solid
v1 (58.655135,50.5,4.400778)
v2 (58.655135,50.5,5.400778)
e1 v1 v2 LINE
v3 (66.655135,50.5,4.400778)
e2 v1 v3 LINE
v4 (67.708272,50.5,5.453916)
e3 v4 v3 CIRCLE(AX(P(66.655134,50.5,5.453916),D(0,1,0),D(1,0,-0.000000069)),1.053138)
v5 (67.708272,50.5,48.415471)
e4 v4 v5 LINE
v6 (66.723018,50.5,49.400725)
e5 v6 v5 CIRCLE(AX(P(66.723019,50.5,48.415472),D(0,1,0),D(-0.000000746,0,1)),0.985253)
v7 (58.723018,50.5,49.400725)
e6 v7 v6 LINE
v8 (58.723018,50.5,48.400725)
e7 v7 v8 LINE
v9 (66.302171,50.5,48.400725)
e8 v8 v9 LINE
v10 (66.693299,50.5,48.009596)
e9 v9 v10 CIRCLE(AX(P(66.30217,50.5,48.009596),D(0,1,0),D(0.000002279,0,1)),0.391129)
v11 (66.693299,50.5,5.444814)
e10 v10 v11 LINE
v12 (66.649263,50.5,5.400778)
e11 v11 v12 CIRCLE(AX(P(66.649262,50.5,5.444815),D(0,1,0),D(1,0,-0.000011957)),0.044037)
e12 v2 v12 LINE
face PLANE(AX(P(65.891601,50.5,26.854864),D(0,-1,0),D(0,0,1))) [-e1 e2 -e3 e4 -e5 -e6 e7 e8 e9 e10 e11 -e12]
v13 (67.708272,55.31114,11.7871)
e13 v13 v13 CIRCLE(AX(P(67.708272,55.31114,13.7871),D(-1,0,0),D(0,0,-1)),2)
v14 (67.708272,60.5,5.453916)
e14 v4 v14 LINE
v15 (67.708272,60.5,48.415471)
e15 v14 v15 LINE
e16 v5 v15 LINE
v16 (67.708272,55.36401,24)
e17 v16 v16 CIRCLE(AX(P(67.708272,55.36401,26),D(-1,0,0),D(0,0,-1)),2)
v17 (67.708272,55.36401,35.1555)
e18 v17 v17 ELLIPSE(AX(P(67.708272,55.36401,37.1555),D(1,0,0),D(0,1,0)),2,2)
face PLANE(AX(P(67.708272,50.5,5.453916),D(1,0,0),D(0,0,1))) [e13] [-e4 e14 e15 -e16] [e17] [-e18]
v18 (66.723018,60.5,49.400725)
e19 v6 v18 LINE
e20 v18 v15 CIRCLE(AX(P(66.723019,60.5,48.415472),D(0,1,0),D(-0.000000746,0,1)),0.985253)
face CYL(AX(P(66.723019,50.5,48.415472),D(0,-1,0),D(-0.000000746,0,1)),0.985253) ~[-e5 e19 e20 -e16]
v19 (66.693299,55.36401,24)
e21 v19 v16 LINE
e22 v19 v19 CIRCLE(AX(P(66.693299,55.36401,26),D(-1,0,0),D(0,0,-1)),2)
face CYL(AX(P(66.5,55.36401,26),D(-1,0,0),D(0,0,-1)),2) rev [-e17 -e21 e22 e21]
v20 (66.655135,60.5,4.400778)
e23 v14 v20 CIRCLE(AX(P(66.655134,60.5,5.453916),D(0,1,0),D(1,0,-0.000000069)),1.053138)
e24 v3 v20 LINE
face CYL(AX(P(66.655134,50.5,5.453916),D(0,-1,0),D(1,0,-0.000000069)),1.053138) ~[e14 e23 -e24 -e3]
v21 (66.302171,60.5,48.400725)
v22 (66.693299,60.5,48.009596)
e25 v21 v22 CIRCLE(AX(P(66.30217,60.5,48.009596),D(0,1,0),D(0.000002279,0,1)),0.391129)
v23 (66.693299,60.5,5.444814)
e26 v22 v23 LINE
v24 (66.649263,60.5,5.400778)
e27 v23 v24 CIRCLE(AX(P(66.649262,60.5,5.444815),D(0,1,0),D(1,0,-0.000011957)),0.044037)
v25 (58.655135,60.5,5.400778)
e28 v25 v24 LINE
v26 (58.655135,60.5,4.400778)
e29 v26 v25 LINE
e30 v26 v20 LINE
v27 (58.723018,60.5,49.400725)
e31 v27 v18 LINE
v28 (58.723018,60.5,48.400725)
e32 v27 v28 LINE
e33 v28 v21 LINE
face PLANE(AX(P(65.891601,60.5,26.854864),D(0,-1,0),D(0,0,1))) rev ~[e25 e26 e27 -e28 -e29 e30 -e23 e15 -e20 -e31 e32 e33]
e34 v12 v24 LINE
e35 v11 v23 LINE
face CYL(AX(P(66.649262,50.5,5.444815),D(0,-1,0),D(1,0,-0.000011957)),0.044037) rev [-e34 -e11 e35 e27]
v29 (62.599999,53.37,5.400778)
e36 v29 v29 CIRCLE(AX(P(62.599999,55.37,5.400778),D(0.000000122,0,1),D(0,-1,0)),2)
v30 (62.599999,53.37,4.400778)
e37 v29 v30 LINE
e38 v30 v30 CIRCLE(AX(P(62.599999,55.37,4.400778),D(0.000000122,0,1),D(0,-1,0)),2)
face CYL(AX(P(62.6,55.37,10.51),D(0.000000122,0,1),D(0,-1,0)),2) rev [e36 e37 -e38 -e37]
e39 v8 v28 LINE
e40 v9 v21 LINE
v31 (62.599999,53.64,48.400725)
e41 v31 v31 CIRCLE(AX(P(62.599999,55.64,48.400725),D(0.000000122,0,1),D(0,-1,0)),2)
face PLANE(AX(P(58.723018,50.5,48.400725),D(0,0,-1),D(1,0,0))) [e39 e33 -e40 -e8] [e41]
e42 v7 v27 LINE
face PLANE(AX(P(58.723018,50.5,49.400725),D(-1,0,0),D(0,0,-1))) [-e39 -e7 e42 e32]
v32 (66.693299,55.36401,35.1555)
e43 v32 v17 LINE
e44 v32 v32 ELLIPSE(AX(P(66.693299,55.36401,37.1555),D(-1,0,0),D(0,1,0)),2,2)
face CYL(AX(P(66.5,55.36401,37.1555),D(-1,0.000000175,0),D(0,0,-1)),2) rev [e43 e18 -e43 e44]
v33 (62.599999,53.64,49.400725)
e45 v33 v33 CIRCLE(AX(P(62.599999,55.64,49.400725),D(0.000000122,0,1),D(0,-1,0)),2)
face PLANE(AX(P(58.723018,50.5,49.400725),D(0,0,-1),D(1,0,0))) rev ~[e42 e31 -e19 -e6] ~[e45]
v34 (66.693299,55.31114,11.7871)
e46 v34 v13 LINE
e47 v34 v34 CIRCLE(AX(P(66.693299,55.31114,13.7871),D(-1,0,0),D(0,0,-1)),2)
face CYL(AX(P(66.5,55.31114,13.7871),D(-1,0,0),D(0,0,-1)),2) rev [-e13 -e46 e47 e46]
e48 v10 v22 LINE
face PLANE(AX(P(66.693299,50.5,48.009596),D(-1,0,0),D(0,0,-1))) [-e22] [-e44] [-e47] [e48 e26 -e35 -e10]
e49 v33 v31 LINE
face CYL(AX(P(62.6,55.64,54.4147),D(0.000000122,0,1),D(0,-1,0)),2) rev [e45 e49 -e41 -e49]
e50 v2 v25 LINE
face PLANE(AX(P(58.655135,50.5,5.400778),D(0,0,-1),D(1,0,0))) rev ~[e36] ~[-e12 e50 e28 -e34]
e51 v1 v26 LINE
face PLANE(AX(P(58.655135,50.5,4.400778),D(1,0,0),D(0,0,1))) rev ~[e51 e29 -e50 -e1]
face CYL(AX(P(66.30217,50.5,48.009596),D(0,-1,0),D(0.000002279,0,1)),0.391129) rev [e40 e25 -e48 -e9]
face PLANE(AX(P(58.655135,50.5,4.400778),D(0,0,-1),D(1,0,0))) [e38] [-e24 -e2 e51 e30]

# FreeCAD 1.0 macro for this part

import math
import FreeCAD as App
import Part
import Sketcher
from FreeCAD import Vector

doc = App.newDocument("Part")
body = doc.addObject("PartDesign::Body", "Body")

# Sketch on XY plane
sketch1 = body.newObject("Sketcher::SketchObject", "Sketch")
sketch1.AttachmentSupport = (doc.getObject("XY_Plane"), [""])
sketch1.MapMode = "FlatFace"
sketch1.addGeometry(Part.Circle(Vector(0, 0, 0), Vector(0, 0, 1), 2), False)
sketch1.addConstraint([
    Sketcher.Constraint("Coincident", 0, 3, -1, 1),
    Sketcher.Constraint("Diameter", 0, 4.0),
])
pad1 = body.newObject("PartDesign::Pad", "Pad")
pad1.Profile = sketch1
pad1.Length = 10
body2 = doc.addObject("PartDesign::Body", "Body001")
doc.recompute()

body.Placement = App.Placement(Vector(0, 0, 0), App.Rotation(Vector(0, 1, 0), 90))
boolean = body2.newObject("PartDesign::Boolean", "Boolean")
boolean.Type = "Fuse"
boolean.addObjects([body])
body3 = doc.addObject("PartDesign::Body", "Body002")
doc.recompute()

body2.Placement = App.Placement(Vector(15.49, 3.9, 4.87), App.Rotation(Vector(0, 0, 1), 0.000007))
boolean2 = body3.newObject("PartDesign::Boolean", "Boolean001")
boolean2.Type = "Fuse"
boolean2.addObjects([body2])
body4 = doc.addObject("PartDesign::Body", "Body003")

# Sketch on XY plane
sketch2 = body4.newObject("Sketcher::SketchObject", "Sketch001")
sketch2.AttachmentSupport = (doc.getObject("XY_Plane003"), [""])
sketch2.MapMode = "FlatFace"
sketch2.addGeometry(Part.Circle(Vector(0, 0, 0), Vector(0, 0, 1), 2), False)
sketch2.addConstraint([
    Sketcher.Constraint("Coincident", 0, 3, -1, 1),
    Sketcher.Constraint("Diameter", 0, 4.0),
])
pad2 = body4.newObject("PartDesign::Pad", "Pad001")
pad2.Profile = sketch2
pad2.Length = 10
body5 = doc.addObject("PartDesign::Body", "Body004")
doc.recompute()

body4.Placement = App.Placement(Vector(0, 0, 0), App.Rotation(Vector(0, 1, 0), 90))
boolean3 = body5.newObject("PartDesign::Boolean", "Boolean002")
boolean3.Type = "Fuse"
boolean3.addObjects([body4])
body6 = doc.addObject("PartDesign::Body", "Body005")
doc.recompute()

body5.Placement = App.Placement(Vector(-28.4147, 3.9, 5.14), App.Rotation(Vector(0, 0, 1), 0.000007))
boolean4 = body6.newObject("PartDesign::Boolean", "Boolean003")
boolean4.Type = "Fuse"
boolean4.addObjects([body5])
body7 = doc.addObject("PartDesign::Body", "Body006")

# Sketch on XY plane
sketch3 = body7.newObject("Sketcher::SketchObject", "Sketch002")
sketch3.AttachmentSupport = (doc.getObject("XY_Plane006"), [""])
sketch3.MapMode = "FlatFace"
sketch3.addGeometry(Part.Circle(Vector(0, 0, 0), Vector(0, 0, 1), 2), False)
sketch3.addConstraint([
    Sketcher.Constraint("Coincident", 0, 3, -1, 1),
    Sketcher.Constraint("Diameter", 0, 4.0),
])
pad3 = body7.newObject("PartDesign::Pad", "Pad002")
pad3.Profile = sketch3
pad3.Length = 2
body8 = doc.addObject("PartDesign::Body", "Body007")
doc.recompute()

body7.Placement = App.Placement(Vector(0, 0, 0), App.Rotation(Vector(1, 0, 0), 271.492946))
boolean5 = body8.newObject("PartDesign::Boolean", "Boolean004")
boolean5.Type = "Fuse"
boolean5.addObjects([body7])
body9 = doc.addObject("PartDesign::Body", "Body008")
doc.recompute()

body8.Placement = App.Placement(Vector(0, 0, 0), App.Rotation(Vector(0, 1, 0), 272.98249))
boolean6 = body9.newObject("PartDesign::Boolean", "Boolean005")
boolean6.Type = "Fuse"
boolean6.addObjects([body8])
body10 = doc.addObject("PartDesign::Body", "Body009")
doc.recompute()

body9.Placement = App.Placement(Vector(-26, 5.29, 4.9), App.Rotation(Vector(0, 0, 1), 267.755985))
boolean7 = body10.newObject("PartDesign::Boolean", "Boolean006")
boolean7.Type = "Fuse"
boolean7.addObjects([body9])
body11 = doc.addObject("PartDesign::Body", "Body010")

# Sketch on XY plane
sketch4 = body11.newObject("Sketcher::SketchObject", "Sketch003")
sketch4.AttachmentSupport = (doc.getObject("XY_Plane010"), [""])
sketch4.MapMode = "FlatFace"
sketch4.addGeometry(Part.Circle(Vector(0, 0, 0), Vector(0, 0, 1), 2), False)
sketch4.addConstraint([
    Sketcher.Constraint("Coincident", 0, 3, -1, 1),
    Sketcher.Constraint("Diameter", 0, 4.0),
])
pad4 = body11.newObject("PartDesign::Pad", "Pad003")
pad4.Profile = sketch4
pad4.Length = 2
body12 = doc.addObject("PartDesign::Body", "Body011")
doc.recompute()

body11.Placement = App.Placement(Vector(-11.1555, 0, 4.86401), App.Rotation(Vector(1, 0, 0), 90.00001))
boolean8 = body12.newObject("PartDesign::Boolean", "Boolean007")
boolean8.Type = "Fuse"
boolean8.addObjects([body11])
body13 = doc.addObject("PartDesign::Body", "Body012")

# Sketch on XY plane
sketch5 = body13.newObject("Sketcher::SketchObject", "Sketch004")
sketch5.AttachmentSupport = (doc.getObject("XY_Plane012"), [""])
sketch5.MapMode = "FlatFace"
sketch5.addGeometry(Part.Circle(Vector(0, 0, 0), Vector(0, 0, 1), 2), False)
sketch5.addConstraint([
    Sketcher.Constraint("Coincident", 0, 3, -1, 1),
    Sketcher.Constraint("Diameter", 0, 4.0),
])
pad5 = body13.newObject("PartDesign::Pad", "Pad004")
pad5.Profile = sketch5
pad5.Length = 2
body14 = doc.addObject("PartDesign::Body", "Body013")
doc.recompute()

body13.Placement = App.Placement(Vector(0, 0, 0), App.Rotation(Vector(1, 0, 0), 90))
boolean9 = body14.newObject("PartDesign::Boolean", "Boolean008")
boolean9.Type = "Fuse"
boolean9.addObjects([body13])
body15 = doc.addObject("PartDesign::Body", "Body014")
doc.recompute()

body14.Placement = App.Placement(Vector(0, 0, 4.86401), App.Rotation(Vector(0, 0, 1), 0))
boolean10 = body15.newObject("PartDesign::Boolean", "Boolean009")
boolean10.Type = "Fuse"
boolean10.addObjects([body14])
body16 = doc.addObject("PartDesign::Body", "Body015")

# Sketch on XY plane
sketch6 = body16.newObject("Sketcher::SketchObject", "Sketch005")
sketch6.AttachmentSupport = (doc.getObject("XY_Plane015"), [""])
sketch6.MapMode = "FlatFace"
sketch6.addGeometry(Part.Circle(Vector(0, 0, 0), Vector(0, 0, 1), 2), False)
sketch6.addConstraint([
    Sketcher.Constraint("Coincident", 0, 3, -1, 1),
    Sketcher.Constraint("Diameter", 0, 4.0),
])
pad6 = body16.newObject("PartDesign::Pad", "Pad005")
pad6.Profile = sketch6
pad6.Length = 2
body17 = doc.addObject("PartDesign::Body", "Body016")
doc.recompute()

body16.Placement = App.Placement(Vector(0, 0, 0), App.Rotation(Vector(1, 0, 0), 90))
boolean11 = body17.newObject("PartDesign::Boolean", "Boolean010")
boolean11.Type = "Fuse"
boolean11.addObjects([body16])
body18 = doc.addObject("PartDesign::Body", "Body017")
doc.recompute()

body17.Placement = App.Placement(Vector(12.2129, 0, 4.81114), App.Rotation(Vector(0, 0, 1), 0))
boolean12 = body18.newObject("PartDesign::Boolean", "Boolean011")
boolean12.Type = "Fuse"
boolean12.addObjects([body17])
body19 = doc.addObject("PartDesign::Body", "Body018")

# Sketch on XY plane
sketch7 = body19.newObject("Sketcher::SketchObject", "Sketch006")
sketch7.AttachmentSupport = (doc.getObject("XY_Plane018"), [""])
sketch7.MapMode = "FlatFace"
sketch7.addGeometry(Part.Circle(Vector(0, 0, 0), Vector(0, 0, 1), 2), False)
sketch7.addConstraint([
    Sketcher.Constraint("Coincident", 0, 3, -1, 1),
    Sketcher.Constraint("Diameter", 0, 4.0),
])
pad7 = body19.newObject("PartDesign::Pad", "Pad006")
pad7.Profile = sketch7
pad7.Length = 2
body20 = doc.addObject("PartDesign::Body", "Body019")
doc.recompute()

body19.Placement = App.Placement(Vector(0, 0, 0), App.Rotation(Vector(1, 0, 0), 271.492946))
boolean13 = body20.newObject("PartDesign::Boolean", "Boolean012")
boolean13.Type = "Fuse"
boolean13.addObjects([body19])
body21 = doc.addObject("PartDesign::Body", "Body020")
doc.recompute()

body20.Placement = App.Placement(Vector(0, 0, 0), App.Rotation(Vector(0, 1, 0), 272.98249))
boolean14 = body21.newObject("PartDesign::Boolean", "Boolean013")
boolean14.Type = "Fuse"
boolean14.addObjects([body20])
body22 = doc.addObject("PartDesign::Body", "Body021")
doc.recompute()

body21.Placement = App.Placement(Vector(25, 5.38, 4.9), App.Rotation(Vector(0, 0, 1), 267.755985))
boolean15 = body22.newObject("PartDesign::Boolean", "Boolean014")
boolean15.Type = "Fuse"
boolean15.addObjects([body21])
body23 = doc.addObject("PartDesign::Body", "Body022")

# Sketch on XY plane
sketch8 = body23.newObject("Sketcher::SketchObject", "Sketch007")
sketch8.AttachmentSupport = (doc.getObject("XY_Plane022"), [""])
sketch8.MapMode = "FlatFace"
sketch8.addGeometry([
    Part.LineSegment(Vector(-22.415, -1.208, 0), Vector(20.546, -1.208, 0)),  # 0
    Part.ArcOfCircle(Part.Circle(Vector(20.546, -0.155, 0), Vector(0, 0, 1), 1.053), math.radians(-90), math.radians(0)),  # 1
    Part.LineSegment(Vector(21.599, -0.155, 0), Vector(21.599, 7.845, 0)),  # 2
    Part.LineSegment(Vector(21.599, 7.845, 0), Vector(20.599, 7.845, 0)),  # 3
    Part.LineSegment(Vector(20.599, 7.845, 0), Vector(20.599, -0.149, 0)),  # 4
    Part.ArcOfCircle(Part.Circle(Vector(20.555, -0.149, 0), Vector(0, 0, 1), 0.044), math.radians(-90), math.radians(0)),  # 5
    Part.LineSegment(Vector(20.555, -0.193, 0), Vector(-22.01, -0.193, 0)),  # 6
    Part.ArcOfCircle(Part.Circle(Vector(-22.01, 0.198, 0), Vector(0, 0, 1), 0.391), math.radians(-180), math.radians(-90)),  # 7
    Part.LineSegment(Vector(-22.401, 0.198, 0), Vector(-22.401, 7.777, 0)),  # 8
    Part.LineSegment(Vector(-22.401, 7.777, 0), Vector(-23.401, 7.777, 0)),  # 9
    Part.LineSegment(Vector(-23.401, 7.777, 0), Vector(-23.401, -0.223, 0)),  # 10
    Part.ArcOfCircle(Part.Circle(Vector(-22.415, -0.223, 0), Vector(0, 0, 1), 0.985), math.radians(180), math.radians(270)),  # 11
], False)
sketch8.addConstraint([
    Sketcher.Constraint("Tangent", 0, 2, 1, 1),
    Sketcher.Constraint("Tangent", 1, 2, 2, 1),
    Sketcher.Constraint("Coincident", 2, 2, 3, 1),
    Sketcher.Constraint("Coincident", 3, 2, 4, 1),
    Sketcher.Constraint("Coincident", 4, 2, 5, 2),
    Sketcher.Constraint("Coincident", 5, 1, 6, 1),
    Sketcher.Constraint("Tangent", 6, 2, 7, 2),
    Sketcher.Constraint("Coincident", 7, 1, 8, 1),
    Sketcher.Constraint("Coincident", 8, 2, 9, 1),
    Sketcher.Constraint("Coincident", 9, 2, 10, 1),
    Sketcher.Constraint("Tangent", 10, 2, 11, 1),
    Sketcher.Constraint("Tangent", 11, 2, 0, 1),
    Sketcher.Constraint("Horizontal", 0),
    Sketcher.Constraint("Vertical", 2),
    Sketcher.Constraint("Horizontal", 3),
    Sketcher.Constraint("Vertical", 4),
    Sketcher.Constraint("Horizontal", 6),
    Sketcher.Constraint("Vertical", 8),
    Sketcher.Constraint("Horizontal", 9),
    Sketcher.Constraint("Vertical", 10),
    Sketcher.Constraint("Horizontal", 5, 3, 4, 2),
    Sketcher.Constraint("Equal", 3, 9),
    Sketcher.Constraint("Equal", 2, 10),
    Sketcher.Constraint("DistanceX", 3, 2, 3, 1, 1.0),
    Sketcher.Constraint("DistanceY", 2, 1, 2, 2, 8.0),
    Sketcher.Constraint("Radius", 1, 1.053138),
    Sketcher.Constraint("Radius", 7, 0.391129),
    Sketcher.Constraint("Radius", 5, 0.044037),
    Sketcher.Constraint("Radius", 11, 0.985253),
    Sketcher.Constraint("DistanceX", 6, 2, 6, 1, 42.564782),
    Sketcher.Constraint("DistanceY", 4, 2, 4, 1, 7.994128),
    Sketcher.Constraint("DistanceY", 5, 1, -1, 1, 0.193299),
    Sketcher.Constraint("DistanceX", 0, 2, 5, 1, 0.009102),
    Sketcher.Constraint("DistanceY", 11, 2, 7, 1, 1.406101),
    Sketcher.Constraint("DistanceX", 11, 3, -1, 1, 22.415472),
])
pad8 = body23.newObject("PartDesign::Pad", "Pad007")
pad8.Profile = sketch8
pad8.Length = 10
doc.recompute()

boolean16 = body23.newObject("PartDesign::Boolean", "Boolean015")
boolean16.Type = "Cut"
boolean16.addObjects([body22])
doc.recompute()

boolean17 = body23.newObject("PartDesign::Boolean", "Boolean016")
boolean17.Type = "Cut"
boolean17.addObjects([body18])
doc.recompute()

boolean18 = body23.newObject("PartDesign::Boolean", "Boolean017")
boolean18.Type = "Cut"
boolean18.addObjects([body15])
doc.recompute()

boolean19 = body23.newObject("PartDesign::Boolean", "Boolean018")
boolean19.Type = "Cut"
boolean19.addObjects([body12])
doc.recompute()

boolean20 = body23.newObject("PartDesign::Boolean", "Boolean019")
boolean20.Type = "Cut"
boolean20.addObjects([body10])
doc.recompute()

boolean21 = body23.newObject("PartDesign::Boolean", "Boolean020")
boolean21.Type = "Cut"
boolean21.addObjects([body6])
doc.recompute()

boolean22 = body23.newObject("PartDesign::Boolean", "Boolean021")
boolean22.Type = "Cut"
boolean22.addObjects([body3])
body24 = doc.addObject("PartDesign::Body", "Body023")
doc.recompute()

body23.Placement = App.Placement(Vector(0, 0, 0), App.Rotation(Vector(0, 1, 0), 90))
boolean23 = body24.newObject("PartDesign::Boolean", "Boolean022")
boolean23.Type = "Fuse"
boolean23.addObjects([body23])
body25 = doc.addObject("PartDesign::Body", "Body024")
doc.recompute()

body24.Placement = App.Placement(Vector(66.5, 50.5, 26), App.Rotation(Vector(0, 0, 1), 90))
boolean24 = body25.newObject("PartDesign::Boolean", "Boolean023")
boolean24.Type = "Fuse"
boolean24.addObjects([body24])

doc.recompute()
